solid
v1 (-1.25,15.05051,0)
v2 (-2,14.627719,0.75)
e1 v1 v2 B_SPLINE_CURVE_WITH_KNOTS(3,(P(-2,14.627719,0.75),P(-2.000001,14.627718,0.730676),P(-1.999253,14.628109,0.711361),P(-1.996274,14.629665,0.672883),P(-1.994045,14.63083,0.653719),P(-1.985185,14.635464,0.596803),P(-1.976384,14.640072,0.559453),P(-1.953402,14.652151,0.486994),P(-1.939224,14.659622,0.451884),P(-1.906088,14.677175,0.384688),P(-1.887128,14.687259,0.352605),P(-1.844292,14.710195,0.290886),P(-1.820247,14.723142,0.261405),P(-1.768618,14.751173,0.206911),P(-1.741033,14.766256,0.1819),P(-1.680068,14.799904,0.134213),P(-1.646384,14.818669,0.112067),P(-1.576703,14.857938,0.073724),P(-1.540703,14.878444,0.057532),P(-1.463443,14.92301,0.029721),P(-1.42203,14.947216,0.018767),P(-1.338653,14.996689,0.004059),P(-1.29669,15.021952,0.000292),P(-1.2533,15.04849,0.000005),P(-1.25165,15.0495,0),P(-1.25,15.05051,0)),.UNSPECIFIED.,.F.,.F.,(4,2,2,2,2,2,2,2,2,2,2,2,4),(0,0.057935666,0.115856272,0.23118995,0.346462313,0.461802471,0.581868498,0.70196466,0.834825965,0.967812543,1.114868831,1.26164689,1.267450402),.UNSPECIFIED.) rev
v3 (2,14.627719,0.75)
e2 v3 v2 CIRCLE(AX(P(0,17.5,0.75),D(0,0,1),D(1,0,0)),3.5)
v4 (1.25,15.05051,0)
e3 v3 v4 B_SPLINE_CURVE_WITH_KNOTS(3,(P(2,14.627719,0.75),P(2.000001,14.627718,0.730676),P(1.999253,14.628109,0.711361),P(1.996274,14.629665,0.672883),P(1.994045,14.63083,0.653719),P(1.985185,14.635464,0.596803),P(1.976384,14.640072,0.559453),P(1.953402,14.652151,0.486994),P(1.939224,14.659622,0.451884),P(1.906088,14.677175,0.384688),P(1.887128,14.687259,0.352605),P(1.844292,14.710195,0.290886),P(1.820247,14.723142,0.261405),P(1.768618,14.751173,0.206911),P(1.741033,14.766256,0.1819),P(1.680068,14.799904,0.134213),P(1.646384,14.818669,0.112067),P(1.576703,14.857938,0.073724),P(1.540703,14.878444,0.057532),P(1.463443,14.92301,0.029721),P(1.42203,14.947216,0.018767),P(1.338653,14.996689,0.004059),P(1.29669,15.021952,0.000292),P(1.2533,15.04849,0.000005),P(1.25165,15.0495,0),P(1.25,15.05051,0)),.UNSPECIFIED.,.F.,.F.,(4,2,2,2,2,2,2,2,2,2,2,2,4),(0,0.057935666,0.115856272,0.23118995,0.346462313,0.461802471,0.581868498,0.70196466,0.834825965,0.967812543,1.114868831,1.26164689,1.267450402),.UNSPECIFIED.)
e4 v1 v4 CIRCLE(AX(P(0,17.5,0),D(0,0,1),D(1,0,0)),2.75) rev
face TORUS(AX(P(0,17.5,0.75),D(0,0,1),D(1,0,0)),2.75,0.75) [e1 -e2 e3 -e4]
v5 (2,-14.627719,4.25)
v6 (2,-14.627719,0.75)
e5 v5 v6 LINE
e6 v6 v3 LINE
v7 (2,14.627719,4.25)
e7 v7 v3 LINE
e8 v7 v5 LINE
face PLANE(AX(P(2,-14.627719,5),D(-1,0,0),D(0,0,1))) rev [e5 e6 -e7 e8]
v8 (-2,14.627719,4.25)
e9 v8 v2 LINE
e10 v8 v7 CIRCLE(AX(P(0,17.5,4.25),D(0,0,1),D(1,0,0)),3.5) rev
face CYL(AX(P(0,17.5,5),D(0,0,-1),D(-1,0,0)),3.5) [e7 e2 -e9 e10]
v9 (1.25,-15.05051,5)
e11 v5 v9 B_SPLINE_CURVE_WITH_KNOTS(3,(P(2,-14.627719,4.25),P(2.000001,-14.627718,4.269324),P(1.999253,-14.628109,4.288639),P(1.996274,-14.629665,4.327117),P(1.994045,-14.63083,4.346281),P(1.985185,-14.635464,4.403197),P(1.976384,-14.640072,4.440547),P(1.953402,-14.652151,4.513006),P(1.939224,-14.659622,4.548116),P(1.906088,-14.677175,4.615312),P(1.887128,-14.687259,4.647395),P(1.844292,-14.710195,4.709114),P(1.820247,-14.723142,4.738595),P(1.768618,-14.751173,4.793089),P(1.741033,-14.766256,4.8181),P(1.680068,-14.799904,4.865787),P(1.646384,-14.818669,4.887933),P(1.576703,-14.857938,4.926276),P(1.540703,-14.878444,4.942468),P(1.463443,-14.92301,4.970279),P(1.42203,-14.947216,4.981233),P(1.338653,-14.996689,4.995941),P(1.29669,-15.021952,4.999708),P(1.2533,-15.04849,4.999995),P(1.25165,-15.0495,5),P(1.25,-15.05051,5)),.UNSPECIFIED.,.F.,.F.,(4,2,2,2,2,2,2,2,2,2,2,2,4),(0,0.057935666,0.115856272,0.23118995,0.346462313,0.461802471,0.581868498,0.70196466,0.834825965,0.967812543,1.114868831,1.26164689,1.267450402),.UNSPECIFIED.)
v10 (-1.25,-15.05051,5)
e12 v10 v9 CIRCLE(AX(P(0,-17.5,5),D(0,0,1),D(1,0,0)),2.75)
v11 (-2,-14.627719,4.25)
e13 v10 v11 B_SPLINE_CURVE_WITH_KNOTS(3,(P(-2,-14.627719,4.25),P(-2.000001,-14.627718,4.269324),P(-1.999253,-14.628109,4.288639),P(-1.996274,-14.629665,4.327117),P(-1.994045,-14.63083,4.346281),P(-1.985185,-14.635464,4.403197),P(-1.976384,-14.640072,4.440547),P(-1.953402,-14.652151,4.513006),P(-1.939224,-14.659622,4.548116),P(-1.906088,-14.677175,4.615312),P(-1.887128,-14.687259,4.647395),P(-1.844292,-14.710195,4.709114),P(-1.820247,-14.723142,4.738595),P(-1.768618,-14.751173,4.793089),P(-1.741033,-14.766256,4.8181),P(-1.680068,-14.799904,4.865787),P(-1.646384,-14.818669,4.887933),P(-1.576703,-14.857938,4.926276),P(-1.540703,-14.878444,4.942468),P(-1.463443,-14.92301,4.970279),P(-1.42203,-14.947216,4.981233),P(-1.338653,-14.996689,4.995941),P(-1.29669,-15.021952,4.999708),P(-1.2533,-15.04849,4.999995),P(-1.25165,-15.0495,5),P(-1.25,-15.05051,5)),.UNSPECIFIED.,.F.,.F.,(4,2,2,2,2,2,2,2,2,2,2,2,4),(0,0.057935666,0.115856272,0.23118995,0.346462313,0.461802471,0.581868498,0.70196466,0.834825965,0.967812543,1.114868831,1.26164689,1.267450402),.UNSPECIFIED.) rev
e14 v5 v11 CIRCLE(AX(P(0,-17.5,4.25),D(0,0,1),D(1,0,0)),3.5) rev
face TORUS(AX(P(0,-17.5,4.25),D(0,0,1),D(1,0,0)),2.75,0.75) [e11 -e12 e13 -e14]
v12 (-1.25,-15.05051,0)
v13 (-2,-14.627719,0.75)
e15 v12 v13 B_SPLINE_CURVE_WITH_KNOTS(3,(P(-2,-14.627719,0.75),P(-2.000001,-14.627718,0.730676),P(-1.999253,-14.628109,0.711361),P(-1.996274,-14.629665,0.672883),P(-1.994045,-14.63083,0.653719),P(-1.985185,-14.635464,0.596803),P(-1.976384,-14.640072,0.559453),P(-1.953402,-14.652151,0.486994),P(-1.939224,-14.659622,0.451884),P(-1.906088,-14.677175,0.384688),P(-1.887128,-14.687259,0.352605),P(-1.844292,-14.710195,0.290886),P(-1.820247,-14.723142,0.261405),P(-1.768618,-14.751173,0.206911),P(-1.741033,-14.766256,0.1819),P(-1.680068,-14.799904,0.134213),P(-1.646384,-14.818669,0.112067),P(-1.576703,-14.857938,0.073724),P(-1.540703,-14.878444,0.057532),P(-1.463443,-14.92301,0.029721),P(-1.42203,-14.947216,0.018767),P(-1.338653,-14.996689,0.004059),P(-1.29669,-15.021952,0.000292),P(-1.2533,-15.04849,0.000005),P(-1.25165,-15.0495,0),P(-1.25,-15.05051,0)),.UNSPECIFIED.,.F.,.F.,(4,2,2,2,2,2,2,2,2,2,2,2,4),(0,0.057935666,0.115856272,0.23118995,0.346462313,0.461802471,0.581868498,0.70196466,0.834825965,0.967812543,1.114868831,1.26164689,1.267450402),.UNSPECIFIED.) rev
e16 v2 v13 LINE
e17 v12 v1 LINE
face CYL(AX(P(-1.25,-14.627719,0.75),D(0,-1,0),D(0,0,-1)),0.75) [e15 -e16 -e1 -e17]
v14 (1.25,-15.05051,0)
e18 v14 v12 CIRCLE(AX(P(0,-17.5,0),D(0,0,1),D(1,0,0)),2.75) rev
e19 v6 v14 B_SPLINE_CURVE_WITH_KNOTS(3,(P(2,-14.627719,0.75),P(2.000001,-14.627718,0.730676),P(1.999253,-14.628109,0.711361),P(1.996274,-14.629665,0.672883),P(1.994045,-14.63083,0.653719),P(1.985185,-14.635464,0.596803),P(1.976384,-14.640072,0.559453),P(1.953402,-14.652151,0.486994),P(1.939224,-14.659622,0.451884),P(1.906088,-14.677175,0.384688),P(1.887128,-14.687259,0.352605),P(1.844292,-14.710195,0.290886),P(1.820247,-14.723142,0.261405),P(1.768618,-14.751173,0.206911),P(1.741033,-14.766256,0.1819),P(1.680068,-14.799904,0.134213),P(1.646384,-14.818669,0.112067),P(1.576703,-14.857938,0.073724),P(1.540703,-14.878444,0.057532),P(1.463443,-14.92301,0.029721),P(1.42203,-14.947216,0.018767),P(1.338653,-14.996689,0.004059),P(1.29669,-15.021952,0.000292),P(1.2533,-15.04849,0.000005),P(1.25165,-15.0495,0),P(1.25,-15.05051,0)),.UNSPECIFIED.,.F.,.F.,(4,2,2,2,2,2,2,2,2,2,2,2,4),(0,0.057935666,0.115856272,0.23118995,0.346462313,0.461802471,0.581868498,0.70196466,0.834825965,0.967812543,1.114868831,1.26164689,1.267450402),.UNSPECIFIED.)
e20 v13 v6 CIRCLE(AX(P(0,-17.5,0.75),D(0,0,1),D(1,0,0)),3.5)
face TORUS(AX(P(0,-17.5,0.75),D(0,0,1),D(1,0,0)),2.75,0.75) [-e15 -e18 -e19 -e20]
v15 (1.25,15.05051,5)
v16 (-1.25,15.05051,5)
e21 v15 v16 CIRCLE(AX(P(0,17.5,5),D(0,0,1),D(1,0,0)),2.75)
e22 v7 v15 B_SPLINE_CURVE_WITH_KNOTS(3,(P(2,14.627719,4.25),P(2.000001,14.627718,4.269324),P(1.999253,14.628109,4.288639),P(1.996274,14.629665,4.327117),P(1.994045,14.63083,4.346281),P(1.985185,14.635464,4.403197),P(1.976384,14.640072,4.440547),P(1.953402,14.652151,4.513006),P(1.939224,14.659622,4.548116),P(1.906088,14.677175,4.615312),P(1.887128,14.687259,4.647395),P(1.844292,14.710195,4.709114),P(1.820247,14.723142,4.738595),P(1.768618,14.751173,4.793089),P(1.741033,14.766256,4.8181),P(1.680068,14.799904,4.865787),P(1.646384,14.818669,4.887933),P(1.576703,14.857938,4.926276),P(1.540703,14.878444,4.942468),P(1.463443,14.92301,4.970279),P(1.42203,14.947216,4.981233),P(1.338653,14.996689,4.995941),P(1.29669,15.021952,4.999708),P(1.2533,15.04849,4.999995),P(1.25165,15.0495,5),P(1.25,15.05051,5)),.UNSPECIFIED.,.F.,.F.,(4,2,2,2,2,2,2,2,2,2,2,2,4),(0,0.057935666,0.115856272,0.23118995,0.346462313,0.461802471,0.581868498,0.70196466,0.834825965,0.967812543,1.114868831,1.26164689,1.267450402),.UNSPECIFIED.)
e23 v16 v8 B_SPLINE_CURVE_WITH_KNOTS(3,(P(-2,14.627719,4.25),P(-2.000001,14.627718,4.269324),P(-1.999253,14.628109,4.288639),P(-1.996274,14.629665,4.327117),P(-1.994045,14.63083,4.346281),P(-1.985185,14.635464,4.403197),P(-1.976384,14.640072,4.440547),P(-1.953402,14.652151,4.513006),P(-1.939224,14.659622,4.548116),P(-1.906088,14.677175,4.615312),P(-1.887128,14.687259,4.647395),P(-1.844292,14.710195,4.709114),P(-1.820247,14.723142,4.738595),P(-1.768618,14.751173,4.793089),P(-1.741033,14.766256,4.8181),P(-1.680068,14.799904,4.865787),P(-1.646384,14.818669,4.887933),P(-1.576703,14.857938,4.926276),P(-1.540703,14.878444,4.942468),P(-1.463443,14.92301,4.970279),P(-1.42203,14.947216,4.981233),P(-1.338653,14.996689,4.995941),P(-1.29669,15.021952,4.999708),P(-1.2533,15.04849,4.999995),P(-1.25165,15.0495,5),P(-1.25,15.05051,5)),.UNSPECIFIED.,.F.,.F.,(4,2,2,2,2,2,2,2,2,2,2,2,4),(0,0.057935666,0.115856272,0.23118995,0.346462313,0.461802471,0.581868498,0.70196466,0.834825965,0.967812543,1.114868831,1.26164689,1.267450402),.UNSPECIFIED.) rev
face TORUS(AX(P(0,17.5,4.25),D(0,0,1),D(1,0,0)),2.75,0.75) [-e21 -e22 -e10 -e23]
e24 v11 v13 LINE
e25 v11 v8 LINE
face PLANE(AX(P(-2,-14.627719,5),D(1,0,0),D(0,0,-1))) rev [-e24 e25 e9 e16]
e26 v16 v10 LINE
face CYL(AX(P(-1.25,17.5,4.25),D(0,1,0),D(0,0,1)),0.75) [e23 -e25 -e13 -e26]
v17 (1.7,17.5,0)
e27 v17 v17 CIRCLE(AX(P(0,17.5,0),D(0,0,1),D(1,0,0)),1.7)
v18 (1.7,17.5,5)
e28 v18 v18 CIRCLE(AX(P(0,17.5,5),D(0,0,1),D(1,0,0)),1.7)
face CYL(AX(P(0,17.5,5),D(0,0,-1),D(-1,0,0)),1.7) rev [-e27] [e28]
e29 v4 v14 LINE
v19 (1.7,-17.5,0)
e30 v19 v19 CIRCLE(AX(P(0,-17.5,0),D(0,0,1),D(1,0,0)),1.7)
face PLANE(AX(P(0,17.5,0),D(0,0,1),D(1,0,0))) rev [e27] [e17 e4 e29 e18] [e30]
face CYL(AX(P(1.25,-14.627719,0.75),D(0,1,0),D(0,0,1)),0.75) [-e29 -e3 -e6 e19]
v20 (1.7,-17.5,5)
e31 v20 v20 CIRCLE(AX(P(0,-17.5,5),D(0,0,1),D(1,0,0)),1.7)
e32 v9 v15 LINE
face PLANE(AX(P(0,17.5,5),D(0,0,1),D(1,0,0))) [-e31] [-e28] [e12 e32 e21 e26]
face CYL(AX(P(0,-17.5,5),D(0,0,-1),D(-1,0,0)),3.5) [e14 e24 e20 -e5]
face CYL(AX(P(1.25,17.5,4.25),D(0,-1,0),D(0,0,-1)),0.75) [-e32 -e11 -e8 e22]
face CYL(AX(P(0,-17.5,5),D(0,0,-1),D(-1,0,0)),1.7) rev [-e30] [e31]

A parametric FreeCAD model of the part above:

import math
import FreeCAD as App
import Part
import Sketcher
Q = App.Units.Quantity


def edges_at(feature, points):
    """Names of the edges that pass closest to the given points."""
    edges = feature.Shape.Edges
    near = lambda p: min(range(len(edges)), key=lambda i: edges[i].distToShape(Part.Vertex(*p))[0])
    return sorted({f"Edge{near(p) + 1}" for p in points})

doc = App.newDocument("Part")
body = doc.addObject("PartDesign::Body", "Body")

# Sketch on XY plane
sketch1 = body.newObject("Sketcher::SketchObject", "Sketch")
sketch1.AttachmentSupport = (doc.getObject("XY_Plane"), [""])
sketch1.MapMode = "FlatFace"
sketch1.addGeometry(Part.LineSegment(App.Vector(2, -14.627719, 0), App.Vector(2, 14.627719, 0)), False)
sketch1.addGeometry(Part.ArcOfCircle(Part.Circle(App.Vector(0, 17.5, 0), App.Vector(0, 0, 1), 3.5), math.radians(-55.150095), math.radians(235.150095)), False)
sketch1.addGeometry(Part.LineSegment(App.Vector(-2, 14.627719, 0), App.Vector(-2, -14.627719, 0)), False)
sketch1.addGeometry(Part.ArcOfCircle(Part.Circle(App.Vector(0, -17.5, 0), App.Vector(0, 0, 1), 3.5), math.radians(124.849905), math.radians(415.150095)), False)
sketch1.addGeometry(Part.Circle(App.Vector(0, -17.5, 0), App.Vector(0, 0, 1), 1.7), False)
sketch1.addGeometry(Part.Circle(App.Vector(0, 17.5, 0), App.Vector(0, 0, 1), 1.7), False)
sketch1.addConstraint(Sketcher.Constraint("Coincident", 0, 2, 1, 1))
sketch1.addConstraint(Sketcher.Constraint("Coincident", 1, 2, 2, 1))
sketch1.addConstraint(Sketcher.Constraint("Coincident", 2, 2, 3, 1))
sketch1.addConstraint(Sketcher.Constraint("Coincident", 3, 2, 0, 1))
sketch1.addConstraint(Sketcher.Constraint("Vertical", 0))
sketch1.addConstraint(Sketcher.Constraint("Vertical", 2))
sketch1.addConstraint(Sketcher.Constraint("Coincident", 4, 3, 3, 3))
sketch1.addConstraint(Sketcher.Constraint("Coincident", 5, 3, 1, 3))
sketch1.addConstraint(Sketcher.Constraint("Equal", 1, 3))
sketch1.addConstraint(Sketcher.Constraint("Equal", 4, 5))
sketch1.addConstraint(Sketcher.Constraint("Symmetric", 1, 3, 3, 3, -1, 1))
sketch1.addConstraint(Sketcher.Constraint("Symmetric", 0, 2, 1, 2, -2))
sketch1.addConstraint(Sketcher.Constraint("Diameter", 4, Q("3.4 mm")))
sketch1.addConstraint(Sketcher.Constraint("Radius", 1, Q("3.5 mm")))
sketch1.addConstraint(Sketcher.Constraint("DistanceX", -1, 1, 0, 2, Q("2 mm")))
sketch1.addConstraint(Sketcher.Constraint("DistanceY", 3, 3, 1, 3, Q("35 mm")))
pad1 = body.newObject("PartDesign::Pad", "Pad")
pad1.Profile = sketch1
pad1.Length = 5
doc.recompute()

fillet = body.newObject("PartDesign::Fillet", "Fillet")
fillet.Base = (pad1, edges_at(pad1, [
    (0, -21, 5),
    (2, 0, 5),
    (0, 21, 5),
    (2, 0, 0),
    (0, -21, 0),
    (-2, 0, 0),
    (0, 21, 0),
    (-2, 0, 5),
]))
fillet.Radius = 0.75

doc.recompute()
